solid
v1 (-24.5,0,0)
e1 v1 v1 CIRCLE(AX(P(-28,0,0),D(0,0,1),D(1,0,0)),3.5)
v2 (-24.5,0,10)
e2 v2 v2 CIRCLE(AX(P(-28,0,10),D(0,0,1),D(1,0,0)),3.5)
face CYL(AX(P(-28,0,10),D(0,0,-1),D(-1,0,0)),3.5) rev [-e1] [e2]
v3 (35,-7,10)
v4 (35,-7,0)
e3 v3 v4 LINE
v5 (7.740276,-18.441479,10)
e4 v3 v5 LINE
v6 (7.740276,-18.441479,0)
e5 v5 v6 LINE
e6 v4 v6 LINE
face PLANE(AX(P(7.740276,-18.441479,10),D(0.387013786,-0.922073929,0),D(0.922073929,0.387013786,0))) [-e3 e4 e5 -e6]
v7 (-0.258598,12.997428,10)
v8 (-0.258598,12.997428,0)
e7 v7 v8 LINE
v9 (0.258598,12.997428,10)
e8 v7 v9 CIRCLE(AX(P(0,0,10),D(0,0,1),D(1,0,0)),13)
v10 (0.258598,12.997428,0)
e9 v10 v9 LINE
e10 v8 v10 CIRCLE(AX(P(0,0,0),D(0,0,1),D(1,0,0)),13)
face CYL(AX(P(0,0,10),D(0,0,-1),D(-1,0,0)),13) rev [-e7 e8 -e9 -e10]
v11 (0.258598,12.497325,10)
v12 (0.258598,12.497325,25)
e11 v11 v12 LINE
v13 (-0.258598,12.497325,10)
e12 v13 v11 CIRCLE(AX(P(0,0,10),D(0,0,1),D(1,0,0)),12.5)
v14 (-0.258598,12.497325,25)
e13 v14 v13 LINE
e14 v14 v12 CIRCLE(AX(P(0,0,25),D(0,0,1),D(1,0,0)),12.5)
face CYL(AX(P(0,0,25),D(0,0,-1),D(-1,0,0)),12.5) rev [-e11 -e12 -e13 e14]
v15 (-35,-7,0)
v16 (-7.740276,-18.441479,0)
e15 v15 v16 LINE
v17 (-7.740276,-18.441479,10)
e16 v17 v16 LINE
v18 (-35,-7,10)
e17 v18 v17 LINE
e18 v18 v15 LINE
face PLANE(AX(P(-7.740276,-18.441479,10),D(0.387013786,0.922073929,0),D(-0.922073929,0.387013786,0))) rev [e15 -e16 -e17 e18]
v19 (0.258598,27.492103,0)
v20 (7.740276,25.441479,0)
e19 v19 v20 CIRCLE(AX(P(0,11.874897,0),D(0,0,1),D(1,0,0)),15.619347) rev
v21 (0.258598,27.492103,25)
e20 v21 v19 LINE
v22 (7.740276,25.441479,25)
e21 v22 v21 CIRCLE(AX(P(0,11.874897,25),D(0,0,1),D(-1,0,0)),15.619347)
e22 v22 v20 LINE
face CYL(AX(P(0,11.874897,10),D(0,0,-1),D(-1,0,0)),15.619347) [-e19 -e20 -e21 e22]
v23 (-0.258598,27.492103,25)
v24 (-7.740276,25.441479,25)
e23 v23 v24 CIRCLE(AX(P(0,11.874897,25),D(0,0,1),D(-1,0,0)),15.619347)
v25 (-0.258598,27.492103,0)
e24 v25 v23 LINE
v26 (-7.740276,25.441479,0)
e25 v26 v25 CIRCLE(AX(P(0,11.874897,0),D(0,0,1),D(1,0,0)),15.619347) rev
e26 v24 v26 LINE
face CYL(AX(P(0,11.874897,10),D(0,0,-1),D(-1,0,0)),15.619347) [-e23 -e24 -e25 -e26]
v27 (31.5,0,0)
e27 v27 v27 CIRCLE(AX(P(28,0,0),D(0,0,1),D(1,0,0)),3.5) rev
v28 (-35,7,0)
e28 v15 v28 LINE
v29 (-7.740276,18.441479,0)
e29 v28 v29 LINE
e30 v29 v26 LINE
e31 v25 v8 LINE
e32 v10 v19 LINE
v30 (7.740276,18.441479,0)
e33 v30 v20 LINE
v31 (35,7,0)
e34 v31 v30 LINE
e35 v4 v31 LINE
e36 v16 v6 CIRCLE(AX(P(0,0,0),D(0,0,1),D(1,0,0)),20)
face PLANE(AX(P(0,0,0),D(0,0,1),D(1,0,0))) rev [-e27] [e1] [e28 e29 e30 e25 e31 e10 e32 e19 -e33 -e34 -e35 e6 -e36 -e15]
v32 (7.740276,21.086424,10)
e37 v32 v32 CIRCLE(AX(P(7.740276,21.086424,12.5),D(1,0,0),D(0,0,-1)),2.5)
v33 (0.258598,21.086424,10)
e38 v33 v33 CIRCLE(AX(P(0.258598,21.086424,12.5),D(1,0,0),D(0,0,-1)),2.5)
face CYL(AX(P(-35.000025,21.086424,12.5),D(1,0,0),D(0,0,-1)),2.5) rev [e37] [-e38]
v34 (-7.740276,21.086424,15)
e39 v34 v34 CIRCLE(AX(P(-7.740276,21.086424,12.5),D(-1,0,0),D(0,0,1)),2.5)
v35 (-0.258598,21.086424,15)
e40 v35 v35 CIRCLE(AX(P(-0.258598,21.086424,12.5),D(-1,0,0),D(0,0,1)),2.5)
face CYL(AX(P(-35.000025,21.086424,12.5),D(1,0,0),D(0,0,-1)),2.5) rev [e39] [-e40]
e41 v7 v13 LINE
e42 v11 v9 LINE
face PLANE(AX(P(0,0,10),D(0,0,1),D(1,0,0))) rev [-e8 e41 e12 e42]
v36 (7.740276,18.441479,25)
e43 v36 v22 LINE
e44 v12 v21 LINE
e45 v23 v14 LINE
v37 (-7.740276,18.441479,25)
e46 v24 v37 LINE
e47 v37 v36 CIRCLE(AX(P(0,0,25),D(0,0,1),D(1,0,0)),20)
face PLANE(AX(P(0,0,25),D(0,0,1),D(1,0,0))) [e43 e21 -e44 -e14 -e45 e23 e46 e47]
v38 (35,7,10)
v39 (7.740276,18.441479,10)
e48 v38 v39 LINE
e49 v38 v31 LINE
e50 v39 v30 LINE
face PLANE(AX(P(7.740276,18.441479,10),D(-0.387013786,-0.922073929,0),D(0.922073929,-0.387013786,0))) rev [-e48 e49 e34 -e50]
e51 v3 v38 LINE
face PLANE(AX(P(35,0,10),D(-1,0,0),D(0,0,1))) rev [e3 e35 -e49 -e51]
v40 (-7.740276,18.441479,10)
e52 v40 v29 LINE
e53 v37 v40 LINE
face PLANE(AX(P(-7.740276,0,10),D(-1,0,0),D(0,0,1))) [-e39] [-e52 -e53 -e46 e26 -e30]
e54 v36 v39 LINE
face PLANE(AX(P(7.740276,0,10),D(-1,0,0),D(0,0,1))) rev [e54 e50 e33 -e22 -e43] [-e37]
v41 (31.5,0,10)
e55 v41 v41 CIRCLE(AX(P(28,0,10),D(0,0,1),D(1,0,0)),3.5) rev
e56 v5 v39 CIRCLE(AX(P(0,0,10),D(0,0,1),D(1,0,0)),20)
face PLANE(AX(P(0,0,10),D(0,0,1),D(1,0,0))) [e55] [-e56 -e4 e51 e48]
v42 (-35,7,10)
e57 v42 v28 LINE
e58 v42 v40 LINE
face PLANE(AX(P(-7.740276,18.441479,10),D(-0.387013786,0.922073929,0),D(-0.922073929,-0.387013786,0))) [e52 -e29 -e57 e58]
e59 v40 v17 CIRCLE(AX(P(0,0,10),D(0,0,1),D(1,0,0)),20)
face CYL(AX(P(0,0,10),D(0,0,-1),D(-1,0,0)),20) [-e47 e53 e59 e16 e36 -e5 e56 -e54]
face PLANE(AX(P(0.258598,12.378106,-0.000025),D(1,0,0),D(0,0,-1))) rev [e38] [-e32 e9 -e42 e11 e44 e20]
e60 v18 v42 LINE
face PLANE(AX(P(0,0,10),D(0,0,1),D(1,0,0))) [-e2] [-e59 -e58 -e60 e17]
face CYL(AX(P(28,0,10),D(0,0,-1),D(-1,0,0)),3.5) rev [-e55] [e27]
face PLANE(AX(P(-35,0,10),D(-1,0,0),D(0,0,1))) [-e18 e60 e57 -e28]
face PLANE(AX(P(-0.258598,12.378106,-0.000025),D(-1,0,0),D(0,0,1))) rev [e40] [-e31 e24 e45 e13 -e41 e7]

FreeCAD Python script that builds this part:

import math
import FreeCAD as App
import Part
import Sketcher
from FreeCAD import Vector


def add_polygon(sketch, points):
    """Adds a closed chain of lines whose ends are joined by coincident constraints."""
    first, n = sketch.GeometryCount, len(points)
    for a, b in zip(points, points[1:] + points[:1]):
        sketch.addGeometry(Part.LineSegment(App.Vector(*a, 0), App.Vector(*b, 0)), False)
    for i in range(n):
        sketch.addConstraint(Sketcher.Constraint("Coincident", first + i, 2, first + (i + 1) % n, 1))

doc = App.newDocument("Part")
body = doc.addObject("PartDesign::Body", "Body")

sketch1 = body.newObject("Sketcher::SketchObject", "Sketch")
sketch1.AttachmentSupport = (doc.getObject("XY_Plane"), [""])
sketch1.MapMode = "FlatFace"
sketch1.addGeometry([
    Part.LineSegment(Vector(-35, -7, 0), Vector(-7.7, -18.4, 0)),
    Part.ArcOfCircle(Part.Circle(Vector(0, 0, 0), Vector(0, 0, 1), 20), math.radians(-113), math.radians(-67)),
    Part.LineSegment(Vector(7.7, -18.4, 0), Vector(35, -7, 0)),
    Part.LineSegment(Vector(35, -7, 0), Vector(35, 7, 0)),
    Part.LineSegment(Vector(35, 7, 0), Vector(7.7, 18.4, 0)),
    Part.LineSegment(Vector(7.7, 18.4, 0), Vector(7.7, 25.4, 0)),
    Part.ArcOfCircle(Part.Circle(Vector(0, 11.9, 0), Vector(0, 0, 1), 15.6), math.radians(60), math.radians(120)),
    Part.LineSegment(Vector(-7.7, 25.4, 0), Vector(-7.7, 18.4, 0)),
    Part.LineSegment(Vector(-7.7, 18.4, 0), Vector(-35, 7, 0)),
    Part.LineSegment(Vector(-35, 7, 0), Vector(-35, -7, 0)),
    Part.Circle(Vector(-28, 0, 0), Vector(0, 0, 1), 3.5),
    Part.Circle(Vector(0, 0, 0), Vector(0, 0, 1), 13),
    Part.Circle(Vector(28, 0, 0), Vector(0, 0, 1), 3.5),
], False)
sketch1.addConstraint([
    Sketcher.Constraint("Tangent", 0, 2, 1, 1),
    Sketcher.Constraint("Tangent", 1, 2, 2, 1),
    Sketcher.Constraint("Coincident", 2, 2, 3, 1),
    Sketcher.Constraint("Coincident", 3, 2, 4, 1),
    Sketcher.Constraint("Coincident", 4, 2, 5, 1),
    Sketcher.Constraint("Coincident", 5, 2, 6, 1),
    Sketcher.Constraint("Coincident", 6, 2, 7, 1),
    Sketcher.Constraint("Coincident", 7, 2, 8, 1),
    Sketcher.Constraint("Coincident", 8, 2, 9, 1),
    Sketcher.Constraint("Coincident", 9, 2, 0, 1),
    Sketcher.Constraint("Vertical", 3),
    Sketcher.Constraint("Vertical", 5),
    Sketcher.Constraint("Vertical", 7),
    Sketcher.Constraint("Vertical", 9),
    Sketcher.Constraint("Coincident", 1, 3, -1, 1),
    Sketcher.Constraint("Coincident", 11, 3, -1, 1),
    Sketcher.Constraint("Equal", 10, 12),
    Sketcher.Constraint("Symmetric", 10, 3, 12, 3, -1, 1),
    Sketcher.Constraint("Symmetric", 0, 2, 4, 2, -1, 1),
    Sketcher.Constraint("Symmetric", 1, 2, 7, 2, -1, 1),
    Sketcher.Constraint("Symmetric", 2, 2, 8, 2, -1, 1),
    Sketcher.Constraint("Symmetric", 5, 2, 6, 2, -2),
    Sketcher.Constraint("PointOnObject", 10, 3, -1),
    Sketcher.Constraint("Parallel", 0, 4),
    Sketcher.Constraint("Diameter", 10, 7.0),
    Sketcher.Constraint("Diameter", 11, 26.0),
    Sketcher.Constraint("Radius", 1, 20.0),
    Sketcher.Constraint("DistanceY", 3, 1, 3, 2, 14.0),
    Sketcher.Constraint("DistanceY", 5, 1, 5, 2, 7.0),
    Sketcher.Constraint("DistanceX", 10, 3, -1, 1, 28.0),
    Sketcher.Constraint("DistanceX", -1, 1, 2, 2, 35.0),
    Sketcher.Constraint("Radius", 6, 15.619347),
])
pad1 = body.newObject("PartDesign::Pad", "Pad")
pad1.Profile = sketch1
pad1.Length = 10

sketch2 = body.newObject("Sketcher::SketchObject", "Sketch001")
sketch2.AttachmentSupport = (doc.getObject("XY_Plane"), [""])
sketch2.MapMode = "FlatFace"
sketch2.AttachmentOffset = App.Placement(Vector(0, 0, 10), App.Rotation())
sketch2.addGeometry([
    Part.LineSegment(Vector(-8, 25, 0), Vector(-8, 18, 0)),
    Part.ArcOfCircle(Part.Circle(Vector(0, 0, 0), Vector(0, 0, 1), 20), math.radians(113), math.radians(427)),
    Part.LineSegment(Vector(8, 18, 0), Vector(8, 25, 0)),
    Part.ArcOfCircle(Part.Circle(Vector(0, 12, 0), Vector(0, 0, 1), 16), math.radians(60), math.radians(120)),
    Part.Circle(Vector(0, 0, 0), Vector(0, 0, 1), 12),
], False)
sketch2.addConstraint([
    Sketcher.Constraint("Coincident", 0, 2, 1, 1),
    Sketcher.Constraint("Coincident", 1, 2, 2, 1),
    Sketcher.Constraint("Coincident", 2, 2, 3, 1),
    Sketcher.Constraint("Coincident", 3, 2, 0, 1),
    Sketcher.Constraint("Vertical", 0),
    Sketcher.Constraint("Vertical", 2),
    Sketcher.Constraint("Coincident", 1, 3, -1, 1),
    Sketcher.Constraint("Coincident", 4, 3, -1, 1),
    Sketcher.Constraint("Symmetric", 2, 2, 3, 2, -2),
    Sketcher.Constraint("Diameter", 4, 25.0),
    Sketcher.Constraint("Radius", 1, 20.0),
    Sketcher.Constraint("DistanceY", 0, 2, 0, 1, 7.0),
    Sketcher.Constraint("Radius", 3, 15.619347),
    Sketcher.Constraint("DistanceY", -1, 1, 0, 2, 18.441479),
])
pad2 = body.newObject("PartDesign::Pad", "Pad001")
pad2.Profile = sketch2
pad2.Length = 15

sketch3 = body.newObject("Sketcher::SketchObject", "Sketch002")
sketch3.AttachmentSupport = (doc.getObject("XY_Plane"), [""])
sketch3.MapMode = "FlatFace"
sketch3.AttachmentOffset = App.Placement(Vector(0, 0, 25), App.Rotation())
add_polygon(sketch3, [(-0.3, 31.1), (-0.3, 12.4), (0.3, 12.4), (0.3, 31.1)])
sketch3.addConstraint([
    Sketcher.Constraint("Vertical", 0),
    Sketcher.Constraint("Horizontal", 1),
    Sketcher.Constraint("Vertical", 2),
    Sketcher.Constraint("Horizontal", 3),
    Sketcher.Constraint("DistanceY", -1, 1, 2, 2, 31.104299),
    Sketcher.Constraint("DistanceX", 1, 1, 1, 2, 0.517195),
    Sketcher.Constraint("DistanceY", 0, 2, 0, 1, 18.726193),
    Sketcher.Constraint("DistanceX", 0, 2, -1, 1, 0.258598),
])
pocket1 = body.newObject("PartDesign::Pocket", "Pocket")
pocket1.Profile = sketch3
pocket1.Type = "ThroughAll"

sketch4 = body.newObject("Sketcher::SketchObject", "Sketch003")
sketch4.AttachmentSupport = (doc.getObject("YZ_Plane"), [""])
sketch4.MapMode = "FlatFace"
sketch4.AttachmentOffset = App.Placement(Vector(0, 0, 7.740276), App.Rotation())
sketch4.addGeometry(Part.Circle(Vector(21.1, 12.5, 0), Vector(0, 0, 1), 2.5), False)
sketch4.addConstraint([
    Sketcher.Constraint("Diameter", 0, 5.0),
    Sketcher.Constraint("DistanceY", -1, 1, 0, 3, 12.5),
    Sketcher.Constraint("DistanceX", -1, 1, 0, 3, 21.086424),
])
pocket2 = body.newObject("PartDesign::Pocket", "Pocket001")
pocket2.Profile = sketch4
pocket2.Type = "ThroughAll"

doc.recompute()
